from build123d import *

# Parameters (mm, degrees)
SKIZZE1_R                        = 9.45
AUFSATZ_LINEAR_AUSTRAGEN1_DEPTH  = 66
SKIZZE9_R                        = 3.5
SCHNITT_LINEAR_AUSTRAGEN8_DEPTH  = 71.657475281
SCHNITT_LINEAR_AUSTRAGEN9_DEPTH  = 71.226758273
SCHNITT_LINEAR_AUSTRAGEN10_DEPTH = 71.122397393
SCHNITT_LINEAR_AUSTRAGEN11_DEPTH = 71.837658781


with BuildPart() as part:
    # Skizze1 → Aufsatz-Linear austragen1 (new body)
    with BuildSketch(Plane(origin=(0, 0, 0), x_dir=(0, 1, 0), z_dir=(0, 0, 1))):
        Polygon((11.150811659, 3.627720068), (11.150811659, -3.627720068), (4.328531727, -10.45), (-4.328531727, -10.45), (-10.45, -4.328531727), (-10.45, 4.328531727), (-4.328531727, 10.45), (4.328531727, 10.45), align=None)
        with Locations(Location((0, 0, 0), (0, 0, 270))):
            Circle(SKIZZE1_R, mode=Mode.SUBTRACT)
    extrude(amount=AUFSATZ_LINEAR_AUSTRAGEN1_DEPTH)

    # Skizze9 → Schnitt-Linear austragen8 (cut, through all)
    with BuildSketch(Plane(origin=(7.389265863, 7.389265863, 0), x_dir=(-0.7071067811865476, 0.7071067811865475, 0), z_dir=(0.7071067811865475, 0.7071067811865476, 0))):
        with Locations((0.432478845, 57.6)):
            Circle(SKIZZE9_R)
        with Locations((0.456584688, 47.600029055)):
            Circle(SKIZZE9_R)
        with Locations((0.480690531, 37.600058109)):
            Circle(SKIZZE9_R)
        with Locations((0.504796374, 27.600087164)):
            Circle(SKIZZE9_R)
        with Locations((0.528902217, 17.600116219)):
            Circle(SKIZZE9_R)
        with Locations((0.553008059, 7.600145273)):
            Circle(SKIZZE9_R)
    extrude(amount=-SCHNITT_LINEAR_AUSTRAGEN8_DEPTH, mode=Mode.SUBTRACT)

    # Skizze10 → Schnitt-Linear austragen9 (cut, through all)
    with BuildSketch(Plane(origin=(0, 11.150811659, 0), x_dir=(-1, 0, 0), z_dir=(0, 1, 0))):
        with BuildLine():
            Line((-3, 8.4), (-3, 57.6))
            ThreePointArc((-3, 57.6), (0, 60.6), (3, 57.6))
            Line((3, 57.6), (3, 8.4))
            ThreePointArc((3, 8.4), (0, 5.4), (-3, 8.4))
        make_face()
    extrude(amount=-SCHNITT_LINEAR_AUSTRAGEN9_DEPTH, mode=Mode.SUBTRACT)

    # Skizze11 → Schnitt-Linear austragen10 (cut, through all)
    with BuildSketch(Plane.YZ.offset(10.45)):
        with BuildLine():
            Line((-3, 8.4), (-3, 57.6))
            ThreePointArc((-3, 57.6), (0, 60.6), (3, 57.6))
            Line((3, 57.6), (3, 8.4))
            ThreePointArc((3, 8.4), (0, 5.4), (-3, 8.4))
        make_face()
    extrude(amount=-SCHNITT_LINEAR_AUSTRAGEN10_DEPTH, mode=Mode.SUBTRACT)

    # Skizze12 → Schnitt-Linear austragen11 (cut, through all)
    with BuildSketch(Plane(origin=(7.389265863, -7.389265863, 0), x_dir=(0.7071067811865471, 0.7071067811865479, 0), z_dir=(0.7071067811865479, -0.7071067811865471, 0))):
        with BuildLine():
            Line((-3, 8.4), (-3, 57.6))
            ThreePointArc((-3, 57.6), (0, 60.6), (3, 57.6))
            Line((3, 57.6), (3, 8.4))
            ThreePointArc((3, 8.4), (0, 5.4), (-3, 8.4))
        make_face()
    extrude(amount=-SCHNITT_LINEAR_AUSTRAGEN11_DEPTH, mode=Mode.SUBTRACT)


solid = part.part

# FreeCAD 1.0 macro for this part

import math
import FreeCAD as App
import Part
import Sketcher

doc = App.newDocument("Part")
body = doc.addObject("PartDesign::Body", "Body")

sketch1 = doc.addObject("Sketcher::SketchObject", "Sketch")
body.addObject(sketch1)
sketch1.AttachmentSupport = (doc.XY_Plane, [""])
sketch1.MapMode = "FlatFace"
sketch1.addGeometry([
    Part.LineSegment(App.Vector(4, 11, 0), App.Vector(-4, 11, 0)),
    Part.LineSegment(App.Vector(-4, 11, 0), App.Vector(-10, 4, 0)),
    Part.LineSegment(App.Vector(-10, 4, 0), App.Vector(-10, -4, 0)),
    Part.LineSegment(App.Vector(-10, -4, 0), App.Vector(-4, -10, 0)),
    Part.LineSegment(App.Vector(-4, -10, 0), App.Vector(4, -10, 0)),
    Part.LineSegment(App.Vector(4, -10, 0), App.Vector(10, -4, 0)),
    Part.LineSegment(App.Vector(10, -4, 0), App.Vector(10, 4, 0)),
    Part.LineSegment(App.Vector(10, 4, 0), App.Vector(4, 11, 0)),
    Part.Circle(App.Vector(0, 0, 0), App.Vector(0, 0, 1), 9),
], False)
sketch1.addConstraint([
    Sketcher.Constraint("Coincident", 0, 2, 1, 1),
    Sketcher.Constraint("Coincident", 1, 2, 2, 1),
    Sketcher.Constraint("Coincident", 2, 2, 3, 1),
    Sketcher.Constraint("Coincident", 3, 2, 4, 1),
    Sketcher.Constraint("Coincident", 4, 2, 5, 1),
    Sketcher.Constraint("Coincident", 5, 2, 6, 1),
    Sketcher.Constraint("Coincident", 6, 2, 7, 1),
    Sketcher.Constraint("Coincident", 7, 2, 0, 1),
    Sketcher.Constraint("Horizontal", 0),
    Sketcher.Constraint("Vertical", 2),
    Sketcher.Constraint("Horizontal", 4),
    Sketcher.Constraint("Vertical", 6),
    Sketcher.Constraint("Coincident", 8, 3, -1, 1),
    Sketcher.Constraint("Symmetric", 1, 2, 5, 2, -1, 1),
    Sketcher.Constraint("Perpendicular", 1, 3),
    Sketcher.Constraint("Perpendicular", 3, 5),
    Sketcher.Constraint("Perpendicular", 5, 7),
    Sketcher.Constraint("Horizontal", 2, 2, 5, 2),
    Sketcher.Constraint("Horizontal", 1, 2, 6, 2),
    Sketcher.Constraint("Equal", 4, 2),
    Sketcher.Constraint("Equal", 3, 5),
    Sketcher.Constraint("Diameter", 8, 18.9),
    Sketcher.Constraint("DistanceX", 2, 2, 5, 2, 20.9),
    Sketcher.Constraint("DistanceX", 0, 2, 0, 1, 7.25544),
    Sketcher.Constraint("DistanceX", 4, 1, 4, 2, 8.657063),
])
pad1 = doc.addObject("PartDesign::Pad", "Pad")
body.addObject(pad1)
pad1.Profile = sketch1
pad1.Length = 66

sketch2 = doc.addObject("Sketcher::SketchObject", "Sketch001")
body.addObject(sketch2)
sketch2.Placement = App.Placement(App.Vector(7.389266, 7.389266, 0), App.Rotation(App.Vector(-0.707106781, 0.707106781, 0), App.Vector(0, 0, 0.999999999), App.Vector(0.707106781, 0.707106781, 0), "ZXY"))
sketch2.addGeometry([
    Part.Circle(App.Vector(0.4, 57.6, 0), App.Vector(0, 0, 1), 3.5),
    Part.Circle(App.Vector(0.5, 47.6, 0), App.Vector(0, 0, 1), 3.5),
    Part.Circle(App.Vector(0.5, 37.6, 0), App.Vector(0, 0, 1), 3.5),
    Part.Circle(App.Vector(0.5, 27.6, 0), App.Vector(0, 0, 1), 3.5),
    Part.Circle(App.Vector(0.5, 17.6, 0), App.Vector(0, 0, 1), 3.5),
    Part.Circle(App.Vector(0.6, 7.6, 0), App.Vector(0, 0, 1), 3.5),
], False)
sketch2.addConstraint([
    Sketcher.Constraint("Equal", 0, 1),
    Sketcher.Constraint("Equal", 1, 2),
    Sketcher.Constraint("Equal", 2, 3),
    Sketcher.Constraint("Equal", 3, 4),
    Sketcher.Constraint("Equal", 4, 5),
    Sketcher.Constraint("Diameter", 0, 7.0),
    Sketcher.Constraint("DistanceY", -1, 1, 0, 3, 57.6),
    Sketcher.Constraint("DistanceX", -1, 1, 0, 3, 0.432479),
    Sketcher.Constraint("DistanceY", -1, 1, 1, 3, 47.600029),
    Sketcher.Constraint("DistanceX", -1, 1, 2, 3, 0.480691),
    Sketcher.Constraint("DistanceY", -1, 1, 2, 3, 37.600058),
    Sketcher.Constraint("DistanceX", -1, 1, 5, 3, 0.553008),
    Sketcher.Constraint("DistanceY", 3, 3, 2, 3, 9.999971),
    Sketcher.Constraint("DistanceX", 1, 3, 3, 3, 0.048212),
    Sketcher.Constraint("DistanceY", 4, 3, 3, 3, 9.999971),
    Sketcher.Constraint("DistanceX", 2, 3, 4, 3, 0.048212),
    Sketcher.Constraint("DistanceY", 5, 3, 4, 3, 9.999971),
    Sketcher.Constraint("DistanceX", 3, 3, 5, 3, 0.048212),
])
pocket1 = doc.addObject("PartDesign::Pocket", "Pocket")
body.addObject(pocket1)
pocket1.Profile = sketch2
pocket1.Type = "ThroughAll"

sketch3 = doc.addObject("Sketcher::SketchObject", "Sketch002")
body.addObject(sketch3)
sketch3.AttachmentSupport = (doc.XZ_Plane, [""])
sketch3.MapMode = "FlatFace"
sketch3.AttachmentOffset = App.Placement(App.Vector(0, 0, -11.150812), App.Rotation())
sketch3.addGeometry([
    Part.LineSegment(App.Vector(3, 57.6, 0), App.Vector(3, 8.4, 0)),
    Part.ArcOfCircle(Part.Circle(App.Vector(0, 8.4, 0), App.Vector(0, 0, 1), 3), math.radians(180), math.radians(360)),
    Part.LineSegment(App.Vector(-3, 8.4, 0), App.Vector(-3, 57.6, 0)),
    Part.ArcOfCircle(Part.Circle(App.Vector(0, 57.6, 0), App.Vector(0, 0, 1), 3), math.radians(0), math.radians(180)),
], False)
sketch3.addConstraint([
    Sketcher.Constraint("Tangent", 0, 2, 1, 2),
    Sketcher.Constraint("Tangent", 1, 1, 2, 1),
    Sketcher.Constraint("Tangent", 2, 2, 3, 2),
    Sketcher.Constraint("Tangent", 3, 1, 0, 1),
    Sketcher.Constraint("Vertical", 0),
    Sketcher.Constraint("Vertical", 2),
    Sketcher.Constraint("PointOnObject", 1, 3, -2),
    Sketcher.Constraint("Radius", 1, 3.0),
    Sketcher.Constraint("DistanceY", 0, 2, 0, 1, 49.2),
    Sketcher.Constraint("DistanceY", -1, 1, 1, 3, 8.4),
])
pocket2 = doc.addObject("PartDesign::Pocket", "Pocket001")
body.addObject(pocket2)
pocket2.Profile = sketch3
pocket2.Type = "ThroughAll"
pocket2.Reversed = True

sketch4 = doc.addObject("Sketcher::SketchObject", "Sketch003")
body.addObject(sketch4)
sketch4.AttachmentSupport = (doc.YZ_Plane, [""])
sketch4.MapMode = "FlatFace"
sketch4.AttachmentOffset = App.Placement(App.Vector(0, 0, 10.45), App.Rotation())
sketch4.addGeometry([
    Part.LineSegment(App.Vector(-3, 57.6, 0), App.Vector(-3, 8.4, 0)),
    Part.ArcOfCircle(Part.Circle(App.Vector(0, 8.4, 0), App.Vector(0, 0, 1), 3), math.radians(180), math.radians(360)),
    Part.LineSegment(App.Vector(3, 8.4, 0), App.Vector(3, 57.6, 0)),
    Part.ArcOfCircle(Part.Circle(App.Vector(0, 57.6, 0), App.Vector(0, 0, 1), 3), math.radians(0), math.radians(180)),
], False)
sketch4.addConstraint([
    Sketcher.Constraint("Tangent", 0, 2, 1, 1),
    Sketcher.Constraint("Tangent", 1, 2, 2, 1),
    Sketcher.Constraint("Tangent", 2, 2, 3, 1),
    Sketcher.Constraint("Tangent", 3, 2, 0, 1),
    Sketcher.Constraint("Vertical", 0),
    Sketcher.Constraint("Vertical", 2),
    Sketcher.Constraint("PointOnObject", 1, 3, -2),
    Sketcher.Constraint("Radius", 1, 3.0),
    Sketcher.Constraint("DistanceY", 0, 2, 0, 1, 49.2),
    Sketcher.Constraint("DistanceY", -1, 1, 1, 3, 8.4),
])
pocket3 = doc.addObject("PartDesign::Pocket", "Pocket002")
body.addObject(pocket3)
pocket3.Profile = sketch4
pocket3.Type = "ThroughAll"

sketch5 = doc.addObject("Sketcher::SketchObject", "Sketch004")
body.addObject(sketch5)
sketch5.Placement = App.Placement(App.Vector(7.389266, -7.389266, 0), App.Rotation(App.Vector(0.707106781, 0.707106781, 0), App.Vector(0, 0, 0.999999999), App.Vector(0.707106781, -0.707106781, 0), "ZXY"))
sketch5.addGeometry([
    Part.LineSegment(App.Vector(-3, 57.6, 0), App.Vector(-3, 8.4, 0)),
    Part.ArcOfCircle(Part.Circle(App.Vector(0, 8.4, 0), App.Vector(0, 0, 1), 3), math.radians(180), math.radians(360)),
    Part.LineSegment(App.Vector(3, 8.4, 0), App.Vector(3, 57.6, 0)),
    Part.ArcOfCircle(Part.Circle(App.Vector(0, 57.6, 0), App.Vector(0, 0, 1), 3), math.radians(0), math.radians(180)),
], False)
sketch5.addConstraint([
    Sketcher.Constraint("Tangent", 0, 2, 1, 1),
    Sketcher.Constraint("Tangent", 1, 2, 2, 1),
    Sketcher.Constraint("Tangent", 2, 2, 3, 1),
    Sketcher.Constraint("Tangent", 3, 2, 0, 1),
    Sketcher.Constraint("Vertical", 0),
    Sketcher.Constraint("Vertical", 2),
    Sketcher.Constraint("PointOnObject", 1, 3, -2),
    Sketcher.Constraint("Radius", 1, 3.0),
    Sketcher.Constraint("DistanceY", 0, 2, 0, 1, 49.2),
    Sketcher.Constraint("DistanceY", -1, 1, 1, 3, 8.4),
])
pocket4 = doc.addObject("PartDesign::Pocket", "Pocket003")
body.addObject(pocket4)
pocket4.Profile = sketch5
pocket4.Type = "ThroughAll"

doc.recompute()
